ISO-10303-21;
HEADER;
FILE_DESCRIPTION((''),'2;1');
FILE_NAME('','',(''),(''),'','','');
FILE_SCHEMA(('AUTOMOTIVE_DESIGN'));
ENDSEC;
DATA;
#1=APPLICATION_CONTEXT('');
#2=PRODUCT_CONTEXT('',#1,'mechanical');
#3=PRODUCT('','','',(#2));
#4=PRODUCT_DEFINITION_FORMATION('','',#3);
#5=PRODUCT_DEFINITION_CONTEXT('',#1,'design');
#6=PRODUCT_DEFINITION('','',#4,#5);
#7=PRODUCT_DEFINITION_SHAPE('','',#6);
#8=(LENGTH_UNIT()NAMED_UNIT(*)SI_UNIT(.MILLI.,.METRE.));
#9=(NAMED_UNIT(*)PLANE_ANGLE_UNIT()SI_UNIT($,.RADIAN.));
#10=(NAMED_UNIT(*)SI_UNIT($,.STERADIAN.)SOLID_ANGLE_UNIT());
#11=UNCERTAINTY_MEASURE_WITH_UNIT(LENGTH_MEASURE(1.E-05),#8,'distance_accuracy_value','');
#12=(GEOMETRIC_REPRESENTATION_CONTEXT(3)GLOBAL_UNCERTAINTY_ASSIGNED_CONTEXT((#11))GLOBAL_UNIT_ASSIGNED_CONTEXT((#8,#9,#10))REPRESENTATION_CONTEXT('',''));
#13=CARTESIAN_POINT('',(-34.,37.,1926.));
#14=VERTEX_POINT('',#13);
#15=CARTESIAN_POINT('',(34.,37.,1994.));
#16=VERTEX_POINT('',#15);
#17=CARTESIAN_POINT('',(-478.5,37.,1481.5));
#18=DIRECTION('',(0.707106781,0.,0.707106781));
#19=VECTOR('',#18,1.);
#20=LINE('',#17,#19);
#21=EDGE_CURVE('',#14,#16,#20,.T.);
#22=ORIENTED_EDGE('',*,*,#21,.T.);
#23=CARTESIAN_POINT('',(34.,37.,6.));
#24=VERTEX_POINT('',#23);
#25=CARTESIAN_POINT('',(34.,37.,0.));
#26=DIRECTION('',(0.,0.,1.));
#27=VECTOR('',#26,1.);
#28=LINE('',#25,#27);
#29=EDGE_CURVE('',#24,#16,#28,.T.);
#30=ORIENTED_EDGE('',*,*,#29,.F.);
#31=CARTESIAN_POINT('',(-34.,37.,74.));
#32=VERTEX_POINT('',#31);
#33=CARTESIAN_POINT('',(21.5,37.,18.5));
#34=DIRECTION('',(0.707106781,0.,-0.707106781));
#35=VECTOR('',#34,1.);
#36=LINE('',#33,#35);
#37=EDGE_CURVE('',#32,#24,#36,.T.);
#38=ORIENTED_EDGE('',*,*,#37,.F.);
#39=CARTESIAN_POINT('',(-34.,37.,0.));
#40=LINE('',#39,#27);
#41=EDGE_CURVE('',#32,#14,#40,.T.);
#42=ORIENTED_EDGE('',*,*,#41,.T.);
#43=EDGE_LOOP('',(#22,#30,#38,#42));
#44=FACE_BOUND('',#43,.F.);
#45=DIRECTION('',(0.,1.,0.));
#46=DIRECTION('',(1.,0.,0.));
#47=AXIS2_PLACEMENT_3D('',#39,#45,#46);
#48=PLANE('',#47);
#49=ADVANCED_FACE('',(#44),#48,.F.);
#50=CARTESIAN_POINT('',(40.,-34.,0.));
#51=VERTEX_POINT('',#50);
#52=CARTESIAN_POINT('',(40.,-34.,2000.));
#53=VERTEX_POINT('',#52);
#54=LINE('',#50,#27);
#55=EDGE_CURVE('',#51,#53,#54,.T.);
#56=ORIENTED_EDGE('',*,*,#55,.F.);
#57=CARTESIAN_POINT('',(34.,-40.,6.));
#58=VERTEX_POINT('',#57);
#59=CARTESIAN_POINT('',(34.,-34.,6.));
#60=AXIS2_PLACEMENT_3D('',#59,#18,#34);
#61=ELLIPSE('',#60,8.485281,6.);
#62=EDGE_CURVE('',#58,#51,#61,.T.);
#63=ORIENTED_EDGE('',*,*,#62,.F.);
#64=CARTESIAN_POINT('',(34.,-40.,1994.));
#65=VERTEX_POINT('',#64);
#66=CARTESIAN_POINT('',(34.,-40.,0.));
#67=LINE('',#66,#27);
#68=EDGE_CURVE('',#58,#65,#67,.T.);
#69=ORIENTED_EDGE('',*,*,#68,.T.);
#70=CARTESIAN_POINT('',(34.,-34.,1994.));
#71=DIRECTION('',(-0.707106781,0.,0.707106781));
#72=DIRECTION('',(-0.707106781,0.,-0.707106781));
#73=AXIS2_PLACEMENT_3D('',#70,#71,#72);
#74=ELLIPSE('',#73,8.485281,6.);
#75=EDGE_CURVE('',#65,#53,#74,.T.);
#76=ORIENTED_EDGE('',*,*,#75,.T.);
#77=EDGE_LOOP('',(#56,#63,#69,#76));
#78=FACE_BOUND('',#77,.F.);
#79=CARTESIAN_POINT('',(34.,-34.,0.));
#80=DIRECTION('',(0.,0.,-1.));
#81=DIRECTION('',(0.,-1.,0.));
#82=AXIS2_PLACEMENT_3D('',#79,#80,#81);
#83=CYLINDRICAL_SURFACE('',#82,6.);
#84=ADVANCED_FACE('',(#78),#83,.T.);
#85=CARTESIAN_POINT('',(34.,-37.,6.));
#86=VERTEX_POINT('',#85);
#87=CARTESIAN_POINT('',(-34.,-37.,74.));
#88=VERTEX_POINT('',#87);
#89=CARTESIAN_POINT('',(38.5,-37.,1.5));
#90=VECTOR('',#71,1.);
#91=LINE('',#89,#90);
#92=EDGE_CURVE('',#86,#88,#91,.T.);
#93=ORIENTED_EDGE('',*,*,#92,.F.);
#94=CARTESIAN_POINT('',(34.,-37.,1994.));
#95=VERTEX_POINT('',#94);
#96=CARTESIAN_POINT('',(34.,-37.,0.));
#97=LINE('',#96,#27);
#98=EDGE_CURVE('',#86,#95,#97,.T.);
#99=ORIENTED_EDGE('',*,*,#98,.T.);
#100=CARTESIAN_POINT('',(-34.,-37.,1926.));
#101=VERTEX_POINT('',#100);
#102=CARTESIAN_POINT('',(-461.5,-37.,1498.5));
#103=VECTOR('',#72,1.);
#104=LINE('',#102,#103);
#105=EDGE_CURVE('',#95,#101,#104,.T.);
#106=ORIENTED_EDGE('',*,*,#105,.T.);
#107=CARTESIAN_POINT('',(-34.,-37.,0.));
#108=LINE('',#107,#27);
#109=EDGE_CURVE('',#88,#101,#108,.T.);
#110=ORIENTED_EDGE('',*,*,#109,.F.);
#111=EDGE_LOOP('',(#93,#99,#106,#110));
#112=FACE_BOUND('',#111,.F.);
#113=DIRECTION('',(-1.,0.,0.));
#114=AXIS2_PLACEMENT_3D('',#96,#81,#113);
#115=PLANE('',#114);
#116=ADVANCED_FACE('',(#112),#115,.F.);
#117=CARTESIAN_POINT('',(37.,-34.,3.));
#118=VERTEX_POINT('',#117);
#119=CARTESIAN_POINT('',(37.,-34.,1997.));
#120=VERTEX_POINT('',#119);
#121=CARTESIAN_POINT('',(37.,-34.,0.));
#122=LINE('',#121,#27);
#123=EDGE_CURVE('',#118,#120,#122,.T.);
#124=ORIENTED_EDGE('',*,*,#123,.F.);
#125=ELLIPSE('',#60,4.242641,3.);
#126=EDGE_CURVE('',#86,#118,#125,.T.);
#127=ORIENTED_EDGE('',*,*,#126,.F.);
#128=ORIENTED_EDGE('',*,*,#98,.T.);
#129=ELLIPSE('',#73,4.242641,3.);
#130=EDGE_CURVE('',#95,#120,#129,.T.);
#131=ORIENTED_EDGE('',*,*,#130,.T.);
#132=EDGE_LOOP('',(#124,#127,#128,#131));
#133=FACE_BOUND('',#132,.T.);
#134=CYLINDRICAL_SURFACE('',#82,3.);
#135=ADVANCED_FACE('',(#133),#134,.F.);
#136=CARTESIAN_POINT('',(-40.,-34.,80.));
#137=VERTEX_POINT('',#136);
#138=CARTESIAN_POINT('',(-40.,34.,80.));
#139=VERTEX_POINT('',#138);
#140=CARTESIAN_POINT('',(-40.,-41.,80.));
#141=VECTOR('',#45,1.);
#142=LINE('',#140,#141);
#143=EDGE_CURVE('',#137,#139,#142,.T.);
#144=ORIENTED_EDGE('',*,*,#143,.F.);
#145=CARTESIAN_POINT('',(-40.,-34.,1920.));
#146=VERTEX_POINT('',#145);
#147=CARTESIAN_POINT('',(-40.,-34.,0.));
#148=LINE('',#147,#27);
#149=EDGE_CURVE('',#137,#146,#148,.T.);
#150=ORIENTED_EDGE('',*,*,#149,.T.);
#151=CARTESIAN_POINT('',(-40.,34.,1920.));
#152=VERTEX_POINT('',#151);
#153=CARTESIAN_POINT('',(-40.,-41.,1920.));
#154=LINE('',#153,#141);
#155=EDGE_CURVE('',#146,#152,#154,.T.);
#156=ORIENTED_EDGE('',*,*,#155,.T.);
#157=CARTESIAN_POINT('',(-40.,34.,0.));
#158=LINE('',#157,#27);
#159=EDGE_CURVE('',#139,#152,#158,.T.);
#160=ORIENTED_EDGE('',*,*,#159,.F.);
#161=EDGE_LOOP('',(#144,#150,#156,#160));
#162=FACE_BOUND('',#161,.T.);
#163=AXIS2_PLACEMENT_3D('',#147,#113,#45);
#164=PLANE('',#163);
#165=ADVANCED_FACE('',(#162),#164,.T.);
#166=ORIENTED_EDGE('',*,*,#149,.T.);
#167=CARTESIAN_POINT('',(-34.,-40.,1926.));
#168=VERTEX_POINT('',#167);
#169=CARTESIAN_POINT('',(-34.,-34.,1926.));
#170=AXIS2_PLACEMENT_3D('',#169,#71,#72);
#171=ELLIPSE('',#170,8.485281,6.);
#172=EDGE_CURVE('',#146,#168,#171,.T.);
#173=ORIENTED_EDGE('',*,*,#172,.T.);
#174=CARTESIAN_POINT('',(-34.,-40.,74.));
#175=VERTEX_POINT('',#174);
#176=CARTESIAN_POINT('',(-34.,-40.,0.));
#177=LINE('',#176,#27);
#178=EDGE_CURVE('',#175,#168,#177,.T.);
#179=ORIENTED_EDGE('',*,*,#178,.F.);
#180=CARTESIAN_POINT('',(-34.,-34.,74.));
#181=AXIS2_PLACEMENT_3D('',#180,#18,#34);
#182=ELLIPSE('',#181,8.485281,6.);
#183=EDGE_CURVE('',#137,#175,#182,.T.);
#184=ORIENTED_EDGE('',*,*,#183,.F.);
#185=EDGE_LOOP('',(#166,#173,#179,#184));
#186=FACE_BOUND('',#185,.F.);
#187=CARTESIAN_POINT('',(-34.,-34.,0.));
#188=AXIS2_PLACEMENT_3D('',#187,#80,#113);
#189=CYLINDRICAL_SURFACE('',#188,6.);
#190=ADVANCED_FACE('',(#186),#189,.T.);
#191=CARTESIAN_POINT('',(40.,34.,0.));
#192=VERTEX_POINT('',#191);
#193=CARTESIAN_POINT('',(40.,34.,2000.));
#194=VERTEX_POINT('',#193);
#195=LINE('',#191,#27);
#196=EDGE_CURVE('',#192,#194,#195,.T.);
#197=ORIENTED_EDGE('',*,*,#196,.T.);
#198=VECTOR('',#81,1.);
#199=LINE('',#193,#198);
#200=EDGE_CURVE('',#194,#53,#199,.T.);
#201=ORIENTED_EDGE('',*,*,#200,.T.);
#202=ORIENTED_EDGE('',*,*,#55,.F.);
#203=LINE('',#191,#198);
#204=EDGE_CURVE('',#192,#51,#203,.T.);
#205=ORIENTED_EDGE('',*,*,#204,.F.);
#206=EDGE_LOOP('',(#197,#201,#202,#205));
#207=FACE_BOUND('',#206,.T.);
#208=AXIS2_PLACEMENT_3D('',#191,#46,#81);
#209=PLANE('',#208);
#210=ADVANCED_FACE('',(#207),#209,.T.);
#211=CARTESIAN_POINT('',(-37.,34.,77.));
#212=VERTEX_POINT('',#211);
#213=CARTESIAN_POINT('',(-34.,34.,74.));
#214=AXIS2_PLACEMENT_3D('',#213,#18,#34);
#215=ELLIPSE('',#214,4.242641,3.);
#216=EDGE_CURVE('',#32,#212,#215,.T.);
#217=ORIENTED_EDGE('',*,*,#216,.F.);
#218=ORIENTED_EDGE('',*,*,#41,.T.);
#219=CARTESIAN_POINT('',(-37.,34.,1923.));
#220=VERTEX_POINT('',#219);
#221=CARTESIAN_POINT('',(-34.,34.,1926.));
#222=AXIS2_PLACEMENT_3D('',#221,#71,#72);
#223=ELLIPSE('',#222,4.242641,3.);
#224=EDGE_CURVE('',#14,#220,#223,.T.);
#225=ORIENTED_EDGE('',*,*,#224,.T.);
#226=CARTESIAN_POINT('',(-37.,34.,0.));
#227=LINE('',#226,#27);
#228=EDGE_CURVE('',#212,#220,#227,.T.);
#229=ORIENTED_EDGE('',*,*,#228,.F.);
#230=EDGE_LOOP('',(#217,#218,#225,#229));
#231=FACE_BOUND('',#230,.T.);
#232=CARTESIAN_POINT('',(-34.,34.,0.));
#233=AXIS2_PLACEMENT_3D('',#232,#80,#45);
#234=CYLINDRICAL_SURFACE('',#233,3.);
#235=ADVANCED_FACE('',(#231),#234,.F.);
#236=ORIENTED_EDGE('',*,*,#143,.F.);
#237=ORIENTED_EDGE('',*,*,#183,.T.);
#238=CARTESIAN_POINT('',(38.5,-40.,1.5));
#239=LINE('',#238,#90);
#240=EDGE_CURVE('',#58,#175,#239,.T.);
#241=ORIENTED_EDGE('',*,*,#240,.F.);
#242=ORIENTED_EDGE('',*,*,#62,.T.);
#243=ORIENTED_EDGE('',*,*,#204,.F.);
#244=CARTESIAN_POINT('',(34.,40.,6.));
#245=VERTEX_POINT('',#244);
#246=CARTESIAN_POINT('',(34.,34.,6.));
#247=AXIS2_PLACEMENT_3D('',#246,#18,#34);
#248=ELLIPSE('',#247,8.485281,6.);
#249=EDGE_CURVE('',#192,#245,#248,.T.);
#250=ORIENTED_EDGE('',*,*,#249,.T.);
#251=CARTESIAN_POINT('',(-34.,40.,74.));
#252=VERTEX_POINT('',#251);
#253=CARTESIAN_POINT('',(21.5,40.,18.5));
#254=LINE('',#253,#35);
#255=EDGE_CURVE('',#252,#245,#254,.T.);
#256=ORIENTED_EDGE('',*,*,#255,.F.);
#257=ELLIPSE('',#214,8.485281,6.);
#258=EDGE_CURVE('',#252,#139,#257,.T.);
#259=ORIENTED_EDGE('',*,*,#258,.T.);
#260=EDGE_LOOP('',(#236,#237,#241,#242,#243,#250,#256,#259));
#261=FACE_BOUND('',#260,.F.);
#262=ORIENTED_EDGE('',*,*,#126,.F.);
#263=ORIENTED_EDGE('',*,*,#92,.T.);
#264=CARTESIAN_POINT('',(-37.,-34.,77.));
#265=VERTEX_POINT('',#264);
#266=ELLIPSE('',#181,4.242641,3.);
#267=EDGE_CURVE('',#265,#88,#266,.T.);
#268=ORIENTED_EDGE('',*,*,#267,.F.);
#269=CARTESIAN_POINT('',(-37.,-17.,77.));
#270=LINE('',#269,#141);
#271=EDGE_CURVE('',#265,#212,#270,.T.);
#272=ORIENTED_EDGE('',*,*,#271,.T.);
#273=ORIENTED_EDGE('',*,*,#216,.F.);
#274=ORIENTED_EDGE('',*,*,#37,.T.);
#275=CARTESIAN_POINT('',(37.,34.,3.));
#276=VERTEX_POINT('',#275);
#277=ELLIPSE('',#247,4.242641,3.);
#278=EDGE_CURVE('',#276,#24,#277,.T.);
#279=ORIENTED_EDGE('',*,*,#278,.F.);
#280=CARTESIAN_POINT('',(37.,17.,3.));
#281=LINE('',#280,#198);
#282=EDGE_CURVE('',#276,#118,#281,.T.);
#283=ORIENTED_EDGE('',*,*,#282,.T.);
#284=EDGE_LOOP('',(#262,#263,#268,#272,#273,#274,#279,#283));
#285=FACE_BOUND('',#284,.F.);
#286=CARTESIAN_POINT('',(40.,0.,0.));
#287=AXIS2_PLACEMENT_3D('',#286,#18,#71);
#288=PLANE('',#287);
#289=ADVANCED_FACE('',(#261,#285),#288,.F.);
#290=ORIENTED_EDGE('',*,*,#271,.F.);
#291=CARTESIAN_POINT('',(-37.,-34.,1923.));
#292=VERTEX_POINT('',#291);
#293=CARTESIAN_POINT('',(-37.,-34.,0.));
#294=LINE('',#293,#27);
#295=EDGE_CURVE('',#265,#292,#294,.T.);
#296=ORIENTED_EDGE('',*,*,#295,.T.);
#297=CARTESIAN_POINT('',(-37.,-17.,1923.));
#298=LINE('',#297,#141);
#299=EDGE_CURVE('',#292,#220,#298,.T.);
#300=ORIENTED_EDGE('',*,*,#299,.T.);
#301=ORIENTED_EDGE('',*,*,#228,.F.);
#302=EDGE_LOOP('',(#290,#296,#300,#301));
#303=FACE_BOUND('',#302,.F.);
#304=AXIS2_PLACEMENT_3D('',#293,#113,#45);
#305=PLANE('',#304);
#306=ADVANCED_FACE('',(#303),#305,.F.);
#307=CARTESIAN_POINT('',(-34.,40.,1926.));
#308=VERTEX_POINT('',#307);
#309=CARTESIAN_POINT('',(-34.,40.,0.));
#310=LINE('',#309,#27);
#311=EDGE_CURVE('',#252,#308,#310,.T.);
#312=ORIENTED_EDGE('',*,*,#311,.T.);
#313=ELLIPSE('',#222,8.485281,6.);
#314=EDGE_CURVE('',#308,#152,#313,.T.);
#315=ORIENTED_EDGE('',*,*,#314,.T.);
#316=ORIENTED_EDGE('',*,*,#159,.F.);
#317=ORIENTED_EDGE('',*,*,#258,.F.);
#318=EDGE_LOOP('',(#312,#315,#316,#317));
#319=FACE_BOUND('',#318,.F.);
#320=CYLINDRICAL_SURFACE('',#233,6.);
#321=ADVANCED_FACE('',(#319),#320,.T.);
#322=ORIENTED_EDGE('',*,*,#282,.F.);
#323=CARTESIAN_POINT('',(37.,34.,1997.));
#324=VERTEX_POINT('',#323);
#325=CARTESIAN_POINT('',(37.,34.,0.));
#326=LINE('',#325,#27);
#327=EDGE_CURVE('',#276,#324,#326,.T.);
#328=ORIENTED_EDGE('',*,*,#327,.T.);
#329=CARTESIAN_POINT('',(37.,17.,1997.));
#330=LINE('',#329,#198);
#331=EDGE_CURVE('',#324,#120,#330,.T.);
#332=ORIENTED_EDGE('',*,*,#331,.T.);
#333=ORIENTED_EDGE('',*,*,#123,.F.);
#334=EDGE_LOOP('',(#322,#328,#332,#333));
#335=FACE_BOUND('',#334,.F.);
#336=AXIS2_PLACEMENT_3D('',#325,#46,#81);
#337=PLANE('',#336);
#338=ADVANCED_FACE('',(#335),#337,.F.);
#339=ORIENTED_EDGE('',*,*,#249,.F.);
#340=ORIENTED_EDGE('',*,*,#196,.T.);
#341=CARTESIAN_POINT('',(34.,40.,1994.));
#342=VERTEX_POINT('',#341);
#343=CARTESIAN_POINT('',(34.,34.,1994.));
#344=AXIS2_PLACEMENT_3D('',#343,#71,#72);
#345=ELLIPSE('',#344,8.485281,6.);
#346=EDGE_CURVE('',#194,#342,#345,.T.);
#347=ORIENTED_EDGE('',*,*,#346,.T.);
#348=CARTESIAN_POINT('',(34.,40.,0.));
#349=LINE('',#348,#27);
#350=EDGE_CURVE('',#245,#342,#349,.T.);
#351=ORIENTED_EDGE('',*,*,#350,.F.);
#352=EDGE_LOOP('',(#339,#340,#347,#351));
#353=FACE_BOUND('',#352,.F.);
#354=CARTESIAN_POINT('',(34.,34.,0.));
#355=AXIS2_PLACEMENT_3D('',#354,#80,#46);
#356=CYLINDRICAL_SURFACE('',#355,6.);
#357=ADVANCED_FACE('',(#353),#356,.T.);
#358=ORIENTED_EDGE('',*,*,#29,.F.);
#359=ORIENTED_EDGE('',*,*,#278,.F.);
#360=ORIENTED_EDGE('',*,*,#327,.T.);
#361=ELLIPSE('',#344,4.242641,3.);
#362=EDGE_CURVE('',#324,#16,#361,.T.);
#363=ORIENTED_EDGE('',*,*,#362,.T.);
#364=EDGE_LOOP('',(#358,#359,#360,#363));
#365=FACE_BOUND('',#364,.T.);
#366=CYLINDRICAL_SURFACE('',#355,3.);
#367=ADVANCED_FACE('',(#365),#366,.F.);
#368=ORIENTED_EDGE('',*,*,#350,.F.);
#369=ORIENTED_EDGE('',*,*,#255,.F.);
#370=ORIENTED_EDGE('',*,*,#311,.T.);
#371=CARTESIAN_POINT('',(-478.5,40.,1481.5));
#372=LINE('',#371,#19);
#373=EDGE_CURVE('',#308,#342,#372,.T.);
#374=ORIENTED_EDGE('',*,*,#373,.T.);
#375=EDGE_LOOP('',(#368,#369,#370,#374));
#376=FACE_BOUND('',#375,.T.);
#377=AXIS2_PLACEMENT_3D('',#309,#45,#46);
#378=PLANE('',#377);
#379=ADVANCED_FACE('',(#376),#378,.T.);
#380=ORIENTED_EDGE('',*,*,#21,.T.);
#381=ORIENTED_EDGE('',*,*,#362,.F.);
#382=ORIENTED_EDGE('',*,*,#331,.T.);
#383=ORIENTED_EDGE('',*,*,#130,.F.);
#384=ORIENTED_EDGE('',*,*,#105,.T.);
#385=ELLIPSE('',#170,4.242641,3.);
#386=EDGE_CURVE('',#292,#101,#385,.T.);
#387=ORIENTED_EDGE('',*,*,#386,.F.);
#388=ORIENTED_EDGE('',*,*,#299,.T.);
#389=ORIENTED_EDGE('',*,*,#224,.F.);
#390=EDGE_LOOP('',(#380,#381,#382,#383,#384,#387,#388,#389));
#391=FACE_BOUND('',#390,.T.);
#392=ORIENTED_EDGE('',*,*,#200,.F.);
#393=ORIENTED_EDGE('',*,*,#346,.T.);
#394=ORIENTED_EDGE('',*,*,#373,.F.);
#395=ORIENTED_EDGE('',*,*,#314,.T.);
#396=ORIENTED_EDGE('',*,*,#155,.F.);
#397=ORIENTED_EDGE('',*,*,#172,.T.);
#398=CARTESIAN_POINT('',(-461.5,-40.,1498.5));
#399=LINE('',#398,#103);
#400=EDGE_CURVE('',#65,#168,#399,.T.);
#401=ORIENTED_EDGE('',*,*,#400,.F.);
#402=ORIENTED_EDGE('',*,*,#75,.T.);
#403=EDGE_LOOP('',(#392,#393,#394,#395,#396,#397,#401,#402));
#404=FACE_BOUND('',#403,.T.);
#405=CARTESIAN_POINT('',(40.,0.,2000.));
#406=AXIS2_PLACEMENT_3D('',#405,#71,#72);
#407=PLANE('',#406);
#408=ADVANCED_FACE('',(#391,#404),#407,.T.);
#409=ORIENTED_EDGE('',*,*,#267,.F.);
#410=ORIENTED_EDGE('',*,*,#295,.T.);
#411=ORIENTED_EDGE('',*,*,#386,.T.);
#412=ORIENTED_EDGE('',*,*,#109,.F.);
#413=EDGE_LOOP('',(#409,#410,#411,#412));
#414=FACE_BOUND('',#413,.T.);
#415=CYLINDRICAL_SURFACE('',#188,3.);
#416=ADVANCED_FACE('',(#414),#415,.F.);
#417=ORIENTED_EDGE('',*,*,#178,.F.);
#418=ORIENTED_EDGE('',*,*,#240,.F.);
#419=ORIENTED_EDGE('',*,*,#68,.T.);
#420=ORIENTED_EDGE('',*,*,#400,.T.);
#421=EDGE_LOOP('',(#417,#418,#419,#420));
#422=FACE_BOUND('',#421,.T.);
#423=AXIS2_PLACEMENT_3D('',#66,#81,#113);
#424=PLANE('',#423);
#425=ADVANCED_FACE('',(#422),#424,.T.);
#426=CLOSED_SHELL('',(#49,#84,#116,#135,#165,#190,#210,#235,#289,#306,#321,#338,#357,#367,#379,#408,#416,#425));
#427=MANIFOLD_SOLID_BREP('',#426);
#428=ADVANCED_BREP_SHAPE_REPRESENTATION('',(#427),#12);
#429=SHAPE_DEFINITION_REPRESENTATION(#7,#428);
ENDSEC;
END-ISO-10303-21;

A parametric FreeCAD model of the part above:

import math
import FreeCAD as App
import Part
import Sketcher
from FreeCAD import Vector

doc = App.newDocument("Part")
body = doc.addObject("PartDesign::Body", "Body")

sketch1 = doc.addObject("Sketcher::SketchObject", "Sketch")
body.addObject(sketch1)
sketch1.AttachmentSupport = (doc.XY_Plane, [""])
sketch1.MapMode = "FlatFace"
sketch1.addGeometry([
    Part.LineSegment(Vector(-40, 34, 0), Vector(-40, -34, 0)),
    Part.ArcOfCircle(Part.Circle(Vector(-34, -34, 0), Vector(0, 0, 1), 6), math.radians(180), math.radians(270)),
    Part.LineSegment(Vector(-34, -40, 0), Vector(34, -40, 0)),
    Part.ArcOfCircle(Part.Circle(Vector(34, -34, 0), Vector(0, 0, 1), 6), math.radians(-90), math.radians(0)),
    Part.LineSegment(Vector(40, -34, 0), Vector(40, 34, 0)),
    Part.ArcOfCircle(Part.Circle(Vector(34, 34, 0), Vector(0, 0, 1), 6), math.radians(0), math.radians(90)),
    Part.LineSegment(Vector(34, 40, 0), Vector(-34, 40, 0)),
    Part.ArcOfCircle(Part.Circle(Vector(-34, 34, 0), Vector(0, 0, 1), 6), math.radians(90), math.radians(180)),
    Part.ArcOfCircle(Part.Circle(Vector(-34, 34, 0), Vector(0, 0, 1), 3), math.radians(90), math.radians(180)),
    Part.LineSegment(Vector(-34, 37, 0), Vector(34, 37, 0)),
    Part.ArcOfCircle(Part.Circle(Vector(34, 34, 0), Vector(0, 0, 1), 3), math.radians(0), math.radians(90)),
    Part.LineSegment(Vector(37, 34, 0), Vector(37, -34, 0)),
    Part.ArcOfCircle(Part.Circle(Vector(34, -34, 0), Vector(0, 0, 1), 3), math.radians(-90), math.radians(0)),
    Part.LineSegment(Vector(34, -37, 0), Vector(-34, -37, 0)),
    Part.ArcOfCircle(Part.Circle(Vector(-34, -34, 0), Vector(0, 0, 1), 3), math.radians(180), math.radians(270)),
    Part.LineSegment(Vector(-37, -34, 0), Vector(-37, 34, 0)),
], False)
sketch1.addConstraint([
    Sketcher.Constraint("Tangent", 0, 2, 1, 1),
    Sketcher.Constraint("Tangent", 1, 2, 2, 1),
    Sketcher.Constraint("Tangent", 2, 2, 3, 1),
    Sketcher.Constraint("Tangent", 3, 2, 4, 1),
    Sketcher.Constraint("Tangent", 4, 2, 5, 1),
    Sketcher.Constraint("Tangent", 5, 2, 6, 1),
    Sketcher.Constraint("Tangent", 6, 2, 7, 1),
    Sketcher.Constraint("Tangent", 7, 2, 0, 1),
    Sketcher.Constraint("Tangent", 8, 1, 9, 1),
    Sketcher.Constraint("Tangent", 9, 2, 10, 2),
    Sketcher.Constraint("Tangent", 10, 1, 11, 1),
    Sketcher.Constraint("Tangent", 11, 2, 12, 2),
    Sketcher.Constraint("Tangent", 12, 1, 13, 1),
    Sketcher.Constraint("Tangent", 13, 2, 14, 2),
    Sketcher.Constraint("Tangent", 14, 1, 15, 1),
    Sketcher.Constraint("Tangent", 15, 2, 8, 2),
    Sketcher.Constraint("Vertical", 0),
    Sketcher.Constraint("Horizontal", 2),
    Sketcher.Constraint("Vertical", 4),
    Sketcher.Constraint("Horizontal", 6),
    Sketcher.Constraint("Horizontal", 9),
    Sketcher.Constraint("Vertical", 11),
    Sketcher.Constraint("Horizontal", 13),
    Sketcher.Constraint("Vertical", 15),
    Sketcher.Constraint("Coincident", 8, 3, 7, 3),
    Sketcher.Constraint("Coincident", 10, 3, 5, 3),
    Sketcher.Constraint("Coincident", 12, 3, 3, 3),
    Sketcher.Constraint("Equal", 1, 3),
    Sketcher.Constraint("Equal", 3, 5),
    Sketcher.Constraint("Equal", 5, 7),
    Sketcher.Constraint("Equal", 12, 14),
    Sketcher.Constraint("Symmetric", 1, 3, 5, 3, -1, 1),
    Sketcher.Constraint("Equal", 13, 0),
    Sketcher.Constraint("Radius", 1, 6.0),
    Sketcher.Constraint("Radius", 8, 3.0),
    Sketcher.Constraint("DistanceX", 0, 2, -1, 1, 40.0),
])
pad1 = doc.addObject("PartDesign::Pad", "Pad")
body.addObject(pad1)
pad1.Profile = sketch1
pad1.Length = 2000

sketch2 = doc.addObject("Sketcher::SketchObject", "Sketch001")
body.addObject(sketch2)
sketch2.AttachmentSupport = (doc.XZ_Plane, [""])
sketch2.MapMode = "FlatFace"
sketch2.addGeometry([
    Part.LineSegment(Vector(40, 0, 0), Vector(-40, 0, 0)),
    Part.LineSegment(Vector(-40, 0, 0), Vector(-40, 80, 0)),
    Part.LineSegment(Vector(-40, 80, 0), Vector(40, 0, 0)),
    Part.LineSegment(Vector(40, 2000, 0), Vector(-40, 1920, 0)),
    Part.LineSegment(Vector(-40, 1920, 0), Vector(-40, 2000, 0)),
    Part.LineSegment(Vector(-40, 2000, 0), Vector(40, 2000, 0)),
], False)
sketch2.addConstraint([
    Sketcher.Constraint("Coincident", 0, 2, 1, 1),
    Sketcher.Constraint("Coincident", 1, 2, 2, 1),
    Sketcher.Constraint("Coincident", 2, 2, 0, 1),
    Sketcher.Constraint("Coincident", 3, 2, 4, 1),
    Sketcher.Constraint("Coincident", 4, 2, 5, 1),
    Sketcher.Constraint("Coincident", 5, 2, 3, 1),
    Sketcher.Constraint("Horizontal", 0),
    Sketcher.Constraint("Vertical", 1),
    Sketcher.Constraint("Vertical", 4),
    Sketcher.Constraint("Horizontal", 5),
    Sketcher.Constraint("Symmetric", 0, 2, 2, 2, -1, 1),
    Sketcher.Constraint("Perpendicular", 2, 3),
    Sketcher.Constraint("Vertical", 1, 2, 3, 2),
    Sketcher.Constraint("Vertical", 2, 2, 5, 2),
    Sketcher.Constraint("Equal", 5, 1),
    Sketcher.Constraint("DistanceX", 0, 2, 0, 1, 80.0),
    Sketcher.Constraint("DistanceY", -1, 1, 3, 2, 1920.0),
])
pocket1 = doc.addObject("PartDesign::Pocket", "Pocket")
body.addObject(pocket1)
pocket1.Profile = sketch2
pocket1.Type = "ThroughAll"
pocket1.Midplane = True

doc.recompute()
